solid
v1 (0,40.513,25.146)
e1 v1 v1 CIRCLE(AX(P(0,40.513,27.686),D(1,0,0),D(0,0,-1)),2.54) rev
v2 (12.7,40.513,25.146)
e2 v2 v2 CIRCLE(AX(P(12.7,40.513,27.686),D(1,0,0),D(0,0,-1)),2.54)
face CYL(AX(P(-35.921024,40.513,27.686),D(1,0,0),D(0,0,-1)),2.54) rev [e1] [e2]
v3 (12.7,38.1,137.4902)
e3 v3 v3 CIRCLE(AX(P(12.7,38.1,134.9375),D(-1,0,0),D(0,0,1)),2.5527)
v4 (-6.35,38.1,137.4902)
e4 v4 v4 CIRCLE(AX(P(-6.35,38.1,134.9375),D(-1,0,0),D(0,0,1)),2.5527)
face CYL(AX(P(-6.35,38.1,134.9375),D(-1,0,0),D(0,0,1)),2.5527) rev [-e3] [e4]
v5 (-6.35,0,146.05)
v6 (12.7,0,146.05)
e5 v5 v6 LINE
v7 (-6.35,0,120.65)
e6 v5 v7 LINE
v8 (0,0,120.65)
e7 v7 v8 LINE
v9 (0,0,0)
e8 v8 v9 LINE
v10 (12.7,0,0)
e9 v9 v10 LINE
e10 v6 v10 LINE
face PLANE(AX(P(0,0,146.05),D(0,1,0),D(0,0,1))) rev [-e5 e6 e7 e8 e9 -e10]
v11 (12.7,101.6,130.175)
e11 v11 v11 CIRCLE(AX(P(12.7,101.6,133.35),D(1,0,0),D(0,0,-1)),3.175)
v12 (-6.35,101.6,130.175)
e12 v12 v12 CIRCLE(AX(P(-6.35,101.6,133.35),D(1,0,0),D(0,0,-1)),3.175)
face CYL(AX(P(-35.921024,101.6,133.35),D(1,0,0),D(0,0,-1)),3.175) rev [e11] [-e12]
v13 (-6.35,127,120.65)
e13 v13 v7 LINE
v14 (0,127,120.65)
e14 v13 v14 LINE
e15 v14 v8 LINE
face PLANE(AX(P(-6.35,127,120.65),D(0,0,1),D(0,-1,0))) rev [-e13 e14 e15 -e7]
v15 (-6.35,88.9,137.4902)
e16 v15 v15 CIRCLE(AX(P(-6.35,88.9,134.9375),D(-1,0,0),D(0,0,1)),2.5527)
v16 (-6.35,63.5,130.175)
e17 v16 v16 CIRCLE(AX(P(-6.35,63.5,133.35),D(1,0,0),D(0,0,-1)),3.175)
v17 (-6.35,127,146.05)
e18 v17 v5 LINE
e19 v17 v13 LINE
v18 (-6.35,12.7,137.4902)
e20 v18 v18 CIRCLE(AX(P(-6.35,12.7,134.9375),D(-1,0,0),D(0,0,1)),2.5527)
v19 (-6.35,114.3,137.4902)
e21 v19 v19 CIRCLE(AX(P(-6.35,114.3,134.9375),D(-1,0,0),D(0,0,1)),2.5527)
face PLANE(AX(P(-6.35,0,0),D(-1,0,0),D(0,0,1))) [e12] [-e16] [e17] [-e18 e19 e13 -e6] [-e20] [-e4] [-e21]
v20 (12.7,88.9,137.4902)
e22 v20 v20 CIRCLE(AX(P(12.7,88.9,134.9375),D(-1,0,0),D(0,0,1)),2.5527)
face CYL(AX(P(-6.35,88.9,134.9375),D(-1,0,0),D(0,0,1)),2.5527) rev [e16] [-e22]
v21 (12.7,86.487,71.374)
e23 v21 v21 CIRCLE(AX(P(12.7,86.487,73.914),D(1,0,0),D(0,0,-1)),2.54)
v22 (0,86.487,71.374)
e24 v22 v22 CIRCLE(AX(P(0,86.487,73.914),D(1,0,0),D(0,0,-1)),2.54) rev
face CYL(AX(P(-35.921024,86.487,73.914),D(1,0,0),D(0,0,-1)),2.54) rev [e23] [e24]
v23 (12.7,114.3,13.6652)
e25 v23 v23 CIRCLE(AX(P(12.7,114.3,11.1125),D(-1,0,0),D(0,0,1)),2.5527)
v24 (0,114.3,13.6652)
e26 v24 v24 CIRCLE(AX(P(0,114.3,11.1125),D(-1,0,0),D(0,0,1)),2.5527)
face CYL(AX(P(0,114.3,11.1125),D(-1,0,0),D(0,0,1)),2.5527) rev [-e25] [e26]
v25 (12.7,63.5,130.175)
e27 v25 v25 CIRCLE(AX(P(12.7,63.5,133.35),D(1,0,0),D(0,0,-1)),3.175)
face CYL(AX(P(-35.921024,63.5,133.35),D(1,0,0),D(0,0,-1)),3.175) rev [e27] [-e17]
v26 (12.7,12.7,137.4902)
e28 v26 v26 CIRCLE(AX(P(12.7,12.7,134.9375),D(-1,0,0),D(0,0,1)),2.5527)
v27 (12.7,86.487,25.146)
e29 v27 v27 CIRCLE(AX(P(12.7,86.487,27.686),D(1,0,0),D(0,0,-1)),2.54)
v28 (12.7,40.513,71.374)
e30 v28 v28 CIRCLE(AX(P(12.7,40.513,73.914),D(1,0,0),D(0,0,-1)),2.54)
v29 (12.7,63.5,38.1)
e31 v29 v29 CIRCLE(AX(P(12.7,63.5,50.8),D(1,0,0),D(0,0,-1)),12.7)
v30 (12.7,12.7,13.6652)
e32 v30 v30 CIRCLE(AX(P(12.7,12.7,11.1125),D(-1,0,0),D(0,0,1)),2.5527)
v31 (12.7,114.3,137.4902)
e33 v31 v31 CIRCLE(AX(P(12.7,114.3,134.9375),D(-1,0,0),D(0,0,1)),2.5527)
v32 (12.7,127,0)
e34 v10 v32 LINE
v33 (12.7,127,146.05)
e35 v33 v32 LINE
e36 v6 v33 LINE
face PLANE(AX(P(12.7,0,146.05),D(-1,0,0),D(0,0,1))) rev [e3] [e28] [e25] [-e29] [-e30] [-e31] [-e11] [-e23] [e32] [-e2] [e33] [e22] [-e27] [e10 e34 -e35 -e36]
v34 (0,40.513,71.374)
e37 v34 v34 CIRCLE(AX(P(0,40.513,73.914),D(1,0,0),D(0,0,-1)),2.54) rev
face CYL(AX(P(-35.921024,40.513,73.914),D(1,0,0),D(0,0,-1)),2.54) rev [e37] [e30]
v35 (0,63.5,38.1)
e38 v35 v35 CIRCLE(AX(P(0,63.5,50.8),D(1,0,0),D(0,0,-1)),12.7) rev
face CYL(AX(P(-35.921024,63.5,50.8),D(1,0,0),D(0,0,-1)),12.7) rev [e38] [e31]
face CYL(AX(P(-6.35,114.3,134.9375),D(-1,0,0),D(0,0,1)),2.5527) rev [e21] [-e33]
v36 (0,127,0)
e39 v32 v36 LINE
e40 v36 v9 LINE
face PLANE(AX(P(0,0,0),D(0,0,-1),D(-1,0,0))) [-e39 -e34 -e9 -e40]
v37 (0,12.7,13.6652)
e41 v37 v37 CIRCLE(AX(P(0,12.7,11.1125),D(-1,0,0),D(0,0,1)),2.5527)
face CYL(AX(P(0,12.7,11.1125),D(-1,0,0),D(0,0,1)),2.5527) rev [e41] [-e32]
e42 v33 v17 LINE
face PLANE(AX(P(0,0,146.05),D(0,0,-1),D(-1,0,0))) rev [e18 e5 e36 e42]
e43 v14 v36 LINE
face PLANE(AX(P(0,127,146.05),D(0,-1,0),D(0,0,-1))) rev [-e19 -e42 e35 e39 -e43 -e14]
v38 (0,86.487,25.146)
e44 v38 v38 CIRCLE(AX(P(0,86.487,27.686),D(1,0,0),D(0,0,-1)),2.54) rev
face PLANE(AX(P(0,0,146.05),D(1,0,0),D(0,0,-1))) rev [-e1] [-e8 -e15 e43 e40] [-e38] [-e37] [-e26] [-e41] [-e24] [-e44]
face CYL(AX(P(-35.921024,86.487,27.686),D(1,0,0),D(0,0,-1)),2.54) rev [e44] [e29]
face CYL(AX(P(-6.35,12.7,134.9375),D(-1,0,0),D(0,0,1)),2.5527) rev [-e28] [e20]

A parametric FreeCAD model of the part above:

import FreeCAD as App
import Part
import Sketcher

V = App.Vector
Q = App.Units.Quantity


def add_polygon(sketch, points):
    """Adds a closed chain of lines whose ends are joined by coincident constraints."""
    first, n = sketch.GeometryCount, len(points)
    for a, b in zip(points, points[1:] + points[:1]):
        sketch.addGeometry(Part.LineSegment(App.Vector(*a, 0), App.Vector(*b, 0)), False)
    for i in range(n):
        sketch.addConstraint(Sketcher.Constraint("Coincident", first + i, 2, first + (i + 1) % n, 1))

doc = App.newDocument("Part")
params = doc.addObject("Spreadsheet::Sheet", "Params")
for row, (alias, value) in enumerate([
    ("sketch1_height", "5 in"),
    ("sketch1_width", "0.5 in"),
    ("pad1_length", "5.75 in"),
    ("sketch2_diameter", "1 in"),
    ("sketch2_diameter2", "0.2 in"),
    ("sketch2_diameter3", "0.25 in"),
    ("pocket1_length", "0.5 in"),
    ("sketch3_width", "5 in"),
    ("sketch3_height", "1 in"),
    ("pad2_length", "0.25 in"),
    ("sketch4_diameter", "0.25 in"),
    ("sketch5_diameter", "0.201 in"),
    ("hole_diameter", "0.201 in"),
    ("sketch6_diameter", "0.201 in"),
    ("hole2_diameter", "0.201 in"),
], start=1):
    params.set(f"A{row}", alias)
    params.set(f"B{row}", "=" + value)
    params.setAlias(f"B{row}", alias)

body = doc.addObject("PartDesign::Body", "Body")

sketch1 = body.newObject("Sketcher::SketchObject", "Sketch")
sketch1.AttachmentSupport = (doc.getObject("XY_Plane"), [""])
sketch1.MapMode = "FlatFace"
add_polygon(sketch1, [(0, 127), (0, 0), (12.7, 0), (12.7, 127)])
sketch1.addConstraint([
    Sketcher.Constraint("Vertical", 0),
    Sketcher.Constraint("Horizontal", 1),
    Sketcher.Constraint("Vertical", 2),
    Sketcher.Constraint("Horizontal", 3),
    Sketcher.Constraint("Coincident", 0, 2, -1, 1),
    Sketcher.Constraint("DistanceY", 0, 2, 0, 1, Q("5 in")),
    Sketcher.Constraint("DistanceX", 1, 1, 1, 2, Q("0.5 in")),
])
sketch1.setExpression("Constraints[9]", "Params.sketch1_height")
sketch1.setExpression("Constraints[10]", "Params.sketch1_width")
pad1 = body.newObject("PartDesign::Pad", "Pad")
pad1.Profile = sketch1
pad1.setExpression("Length", "Params.pad1_length")

sketch2 = body.newObject("Sketcher::SketchObject", "Sketch001")
sketch2.AttachmentSupport = (doc.getObject("YZ_Plane"), [""])
sketch2.MapMode = "FlatFace"
sketch2.AttachmentOffset = App.Placement(V(0, 0, 0.5 * 25.4), App.Rotation())
sketch2.addGeometry([
    Part.Circle(V(63.5, 133.35, 0), V(0, 0, 1), 3.175),
    Part.Circle(V(101.6, 133.35, 0), V(0, 0, 1), 3.175),
    Part.Circle(V(63.5, 50.8, 0), V(0, 0, 1), 12.7),
    Part.Circle(V(86.487, 73.914, 0), V(0, 0, 1), 2.54),
    Part.Circle(V(86.487, 27.686, 0), V(0, 0, 1), 2.54),
    Part.Circle(V(40.513, 27.686, 0), V(0, 0, 1), 2.54),
    Part.Circle(V(40.513, 73.914, 0), V(0, 0, 1), 2.54),
], False)
sketch2.addConstraint([
    Sketcher.Constraint("Equal", 0, 1),
    Sketcher.Constraint("Equal", 3, 4),
    Sketcher.Constraint("Equal", 4, 5),
    Sketcher.Constraint("Equal", 5, 6),
    Sketcher.Constraint("Horizontal", 0, 3, 1, 3),
    Sketcher.Constraint("Horizontal", 4, 3, 5, 3),
    Sketcher.Constraint("Horizontal", 3, 3, 6, 3),
    Sketcher.Constraint("Vertical", 0, 3, 2, 3),
    Sketcher.Constraint("Vertical", 3, 3, 4, 3),
    Sketcher.Constraint("Vertical", 5, 3, 6, 3),
    Sketcher.Constraint("Diameter", 2, Q("1 in")),
    Sketcher.Constraint("Diameter", 3, Q("0.2 in")),
    Sketcher.Constraint("Diameter", 0, Q("0.25 in")),
    Sketcher.Constraint("DistanceX", -1, 1, 1, 3, Q("4 in")),
    Sketcher.Constraint("DistanceY", -1, 1, 2, 3, Q("2 in")),
    Sketcher.Constraint("DistanceX", -1, 1, 0, 3, Q("2.5 in")),
    Sketcher.Constraint("DistanceY", -1, 1, 0, 3, Q("5.25 in")),
    Sketcher.Constraint("DistanceY", -1, 1, 3, 3, Q("2.91 in")),
    Sketcher.Constraint("DistanceY", -1, 1, 4, 3, Q("1.09 in")),
    Sketcher.Constraint("DistanceX", 5, 3, 4, 3, Q("1.81 in")),
    Sketcher.Constraint("DistanceX", -1, 1, 3, 3, Q("3.405 in")),
])
sketch2.setExpression("Constraints[10]", "Params.sketch2_diameter")
sketch2.setExpression("Constraints[11]", "Params.sketch2_diameter2")
sketch2.setExpression("Constraints[12]", "Params.sketch2_diameter3")
pocket1 = body.newObject("PartDesign::Pocket", "Pocket")
pocket1.Profile = sketch2
pocket1.setExpression("Length", "Params.pocket1_length")

sketch3 = body.newObject("Sketcher::SketchObject", "Sketch002")
sketch3.AttachmentSupport = (doc.getObject("YZ_Plane"), [""])
sketch3.MapMode = "FlatFace"
add_polygon(sketch3, [(127, 120.65), (0, 120.65), (0, 146.05), (127, 146.05)])
sketch3.addConstraint([
    Sketcher.Constraint("Horizontal", 0),
    Sketcher.Constraint("Vertical", 1),
    Sketcher.Constraint("Horizontal", 2),
    Sketcher.Constraint("Vertical", 3),
    Sketcher.Constraint("PointOnObject", 0, 2, -2),
    Sketcher.Constraint("DistanceX", 0, 2, 0, 1, Q("5 in")),
    Sketcher.Constraint("DistanceY", 1, 1, 1, 2, Q("1 in")),
    Sketcher.Constraint("DistanceY", -1, 1, 0, 2, Q("4.75 in")),
])
sketch3.setExpression("Constraints[9]", "Params.sketch3_width")
sketch3.setExpression("Constraints[10]", "Params.sketch3_height")
pad2 = body.newObject("PartDesign::Pad", "Pad001")
pad2.Profile = sketch3
pad2.setExpression("Length", "Params.pad2_length")
pad2.Reversed = True

sketch4 = body.newObject("Sketcher::SketchObject", "Sketch003")
sketch4.AttachmentSupport = (doc.getObject("YZ_Plane"), [""])
sketch4.MapMode = "FlatFace"
sketch4.addGeometry([
    Part.Circle(V(101.6, 133.35, 0), V(0, 0, 1), 3.175),
    Part.Circle(V(63.5, 133.35, 0), V(0, 0, 1), 3.175),
], False)
sketch4.addConstraint([
    Sketcher.Constraint("Equal", 0, 1),
    Sketcher.Constraint("Horizontal", 0, 3, 1, 3),
    Sketcher.Constraint("Diameter", 0, Q("0.25 in")),
    Sketcher.Constraint("DistanceX", -1, 1, 0, 3, Q("4 in")),
    Sketcher.Constraint("DistanceX", -1, 1, 1, 3, Q("2.5 in")),
    Sketcher.Constraint("DistanceY", -1, 1, 0, 3, Q("5.25 in")),
])
sketch4.setExpression("Constraints[2]", "Params.sketch4_diameter")
pocket2 = body.newObject("PartDesign::Pocket", "Pocket001")
pocket2.Profile = sketch4
pocket2.Type = "ThroughAll"

sketch5 = body.newObject("Sketcher::SketchObject", "Sketch004")
sketch5.AttachmentSupport = (doc.getObject("YZ_Plane"), [""])
sketch5.MapMode = "FlatFace"
sketch5.addGeometry([
    Part.Circle(V(114.3, 11.1125, 0), V(0, 0, 1), 2.5527),
    Part.Circle(V(12.7, 11.1125, 0), V(0, 0, 1), 2.5527),
], False)
sketch5.addConstraint([
    Sketcher.Constraint("Equal", 0, 1),
    Sketcher.Constraint("Horizontal", 0, 3, 1, 3),
    Sketcher.Constraint("Diameter", 0, Q("0.201 in")),
    Sketcher.Constraint("DistanceX", 1, 3, 0, 3, Q("4 in")),
    Sketcher.Constraint("DistanceX", -1, 1, 0, 3, Q("4.5 in")),
    Sketcher.Constraint("DistanceY", -1, 1, 0, 3, Q("0.4375 in")),
])
sketch5.setExpression("Constraints[2]", "Params.sketch5_diameter")
doc.recompute()
hole = body.newObject("PartDesign::Hole", "Hole")
hole.Profile = sketch5
hole.ThreadType = "None"
hole.setExpression("Diameter", "Params.hole_diameter")
hole.DepthType = "ThroughAll"
hole.Reversed = True

sketch6 = body.newObject("Sketcher::SketchObject", "Sketch005")
sketch6.AttachmentSupport = (doc.getObject("YZ_Plane"), [""])
sketch6.MapMode = "FlatFace"
sketch6.AttachmentOffset = App.Placement(V(0, 0, -0.25 * 25.4), App.Rotation())
sketch6.addGeometry([
    Part.Circle(V(114.3, 134.9375, 0), V(0, 0, 1), 2.5527),
    Part.Circle(V(88.9, 134.9375, 0), V(0, 0, 1), 2.5527),
    Part.Circle(V(38.1, 134.9375, 0), V(0, 0, 1), 2.5527),
    Part.Circle(V(12.7, 134.9375, 0), V(0, 0, 1), 2.5527),
], False)
sketch6.addConstraint([
    Sketcher.Constraint("Equal", 0, 1),
    Sketcher.Constraint("Equal", 1, 2),
    Sketcher.Constraint("Equal", 2, 3),
    Sketcher.Constraint("Horizontal", 0, 3, 1, 3),
    Sketcher.Constraint("Horizontal", 1, 3, 2, 3),
    Sketcher.Constraint("Horizontal", 2, 3, 3, 3),
    Sketcher.Constraint("Diameter", 0, Q("0.201 in")),
    Sketcher.Constraint("DistanceX", 1, 3, 0, 3, Q("1 in")),
    Sketcher.Constraint("DistanceX", 2, 3, 1, 3, Q("2 in")),
    Sketcher.Constraint("DistanceX", 3, 3, 2, 3, Q("1 in")),
    Sketcher.Constraint("DistanceX", -1, 1, 0, 3, Q("4.5 in")),
    Sketcher.Constraint("DistanceY", -1, 1, 0, 3, Q("5.3125 in")),
])
sketch6.setExpression("Constraints[6]", "Params.sketch6_diameter")
doc.recompute()
hole2 = body.newObject("PartDesign::Hole", "Hole001")
hole2.Profile = sketch6
hole2.ThreadType = "None"
hole2.setExpression("Diameter", "Params.hole2_diameter")
hole2.DepthType = "ThroughAll"
hole2.Reversed = True

doc.recompute()
